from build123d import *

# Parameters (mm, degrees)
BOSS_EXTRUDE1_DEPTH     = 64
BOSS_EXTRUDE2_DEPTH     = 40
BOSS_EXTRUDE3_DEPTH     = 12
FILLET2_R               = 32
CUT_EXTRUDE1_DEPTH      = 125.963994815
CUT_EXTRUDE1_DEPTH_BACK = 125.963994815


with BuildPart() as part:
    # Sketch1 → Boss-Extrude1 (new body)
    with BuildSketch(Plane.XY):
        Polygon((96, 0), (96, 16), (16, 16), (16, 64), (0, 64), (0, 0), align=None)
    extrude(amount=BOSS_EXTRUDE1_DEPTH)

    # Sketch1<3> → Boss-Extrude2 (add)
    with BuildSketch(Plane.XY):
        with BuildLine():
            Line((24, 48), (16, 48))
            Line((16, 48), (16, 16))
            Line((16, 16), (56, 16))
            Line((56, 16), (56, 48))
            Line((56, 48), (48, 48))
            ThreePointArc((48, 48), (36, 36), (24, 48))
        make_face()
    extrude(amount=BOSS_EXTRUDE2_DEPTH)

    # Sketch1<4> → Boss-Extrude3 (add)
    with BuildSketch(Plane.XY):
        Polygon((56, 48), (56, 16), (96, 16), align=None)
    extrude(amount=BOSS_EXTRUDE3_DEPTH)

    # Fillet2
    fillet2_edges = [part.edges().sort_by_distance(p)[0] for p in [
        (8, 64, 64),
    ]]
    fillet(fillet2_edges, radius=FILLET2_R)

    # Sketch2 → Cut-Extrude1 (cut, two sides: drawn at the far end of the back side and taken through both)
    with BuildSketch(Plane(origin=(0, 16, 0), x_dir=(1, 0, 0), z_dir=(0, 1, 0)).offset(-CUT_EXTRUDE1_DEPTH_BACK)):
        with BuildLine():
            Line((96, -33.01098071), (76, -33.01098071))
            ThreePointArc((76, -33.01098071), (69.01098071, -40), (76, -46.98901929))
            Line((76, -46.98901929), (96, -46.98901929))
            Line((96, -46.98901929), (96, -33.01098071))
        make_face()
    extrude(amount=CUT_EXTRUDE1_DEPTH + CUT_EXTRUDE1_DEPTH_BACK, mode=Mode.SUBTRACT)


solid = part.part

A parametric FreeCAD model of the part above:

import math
import FreeCAD as App
import Part
import Sketcher


def edges_at(feature, points):
    """Names of the edges that pass closest to the given points."""
    edges = feature.Shape.Edges
    near = lambda p: min(range(len(edges)), key=lambda i: edges[i].distToShape(Part.Vertex(*p))[0])
    return sorted({f"Edge{near(p) + 1}" for p in points})


def add_polygon(sketch, points):
    """Adds a closed chain of lines whose ends are joined by coincident constraints."""
    first, n = sketch.GeometryCount, len(points)
    for a, b in zip(points, points[1:] + points[:1]):
        sketch.addGeometry(Part.LineSegment(App.Vector(*a, 0), App.Vector(*b, 0)), False)
    for i in range(n):
        sketch.addConstraint(Sketcher.Constraint("Coincident", first + i, 2, first + (i + 1) % n, 1))

doc = App.newDocument("Part")
body = doc.addObject("PartDesign::Body", "Body")

sketch1 = body.newObject("Sketcher::SketchObject", "Sketch")
sketch1.AttachmentSupport = (doc.getObject("XY_Plane"), [""])
sketch1.MapMode = "FlatFace"
add_polygon(sketch1, [(96, 0), (96, 16), (16, 16), (16, 64), (0, 64), (0, 0)])
sketch1.addConstraint([
    Sketcher.Constraint("Vertical", 0),
    Sketcher.Constraint("Horizontal", 1),
    Sketcher.Constraint("Vertical", 2),
    Sketcher.Constraint("Horizontal", 3),
    Sketcher.Constraint("Vertical", 4),
    Sketcher.Constraint("Horizontal", 5),
    Sketcher.Constraint("Coincident", 4, 2, -1, 1),
    Sketcher.Constraint("Equal", 3, 0),
    Sketcher.Constraint("DistanceX", 1, 2, 1, 1, 80.0),
    Sketcher.Constraint("DistanceX", 3, 2, 3, 1, 16.0),
    Sketcher.Constraint("DistanceY", 2, 1, 2, 2, 48.0),
])
pad1 = body.newObject("PartDesign::Pad", "Pad")
pad1.Profile = sketch1
pad1.Length = 64

sketch2 = body.newObject("Sketcher::SketchObject", "Sketch001")
sketch2.AttachmentSupport = (doc.getObject("XY_Plane"), [""])
sketch2.MapMode = "FlatFace"
sketch2.addGeometry([
    Part.LineSegment(App.Vector(24, 48, 0), App.Vector(16, 48, 0)),
    Part.LineSegment(App.Vector(16, 48, 0), App.Vector(16, 16, 0)),
    Part.LineSegment(App.Vector(16, 16, 0), App.Vector(56, 16, 0)),
    Part.LineSegment(App.Vector(56, 16, 0), App.Vector(56, 48, 0)),
    Part.LineSegment(App.Vector(56, 48, 0), App.Vector(48, 48, 0)),
    Part.ArcOfCircle(Part.Circle(App.Vector(36, 48, 0), App.Vector(0, 0, 1), 12), math.radians(180), math.radians(360)),
], False)
sketch2.addConstraint([
    Sketcher.Constraint("Coincident", 0, 2, 1, 1),
    Sketcher.Constraint("Coincident", 1, 2, 2, 1),
    Sketcher.Constraint("Coincident", 2, 2, 3, 1),
    Sketcher.Constraint("Coincident", 3, 2, 4, 1),
    Sketcher.Constraint("Coincident", 4, 2, 5, 2),
    Sketcher.Constraint("Coincident", 5, 1, 0, 1),
    Sketcher.Constraint("Horizontal", 0),
    Sketcher.Constraint("Vertical", 1),
    Sketcher.Constraint("Horizontal", 2),
    Sketcher.Constraint("Vertical", 3),
    Sketcher.Constraint("Horizontal", 4),
    Sketcher.Constraint("Horizontal", 5, 3, 0, 2),
    Sketcher.Constraint("Horizontal", 0, 2, 3, 2),
    Sketcher.Constraint("Equal", 0, 4),
    Sketcher.Constraint("Radius", 5, 12.0),
    Sketcher.Constraint("DistanceX", 0, 2, 0, 1, 8.0),
    Sketcher.Constraint("DistanceY", 1, 2, 1, 1, 32.0),
    Sketcher.Constraint("DistanceX", -1, 1, 5, 3, 36.0),
    Sketcher.Constraint("DistanceY", -1, 1, 5, 3, 48.0),
])
pad2 = body.newObject("PartDesign::Pad", "Pad001")
pad2.Profile = sketch2
pad2.Length = 40

sketch3 = body.newObject("Sketcher::SketchObject", "Sketch002")
sketch3.AttachmentSupport = (doc.getObject("XY_Plane"), [""])
sketch3.MapMode = "FlatFace"
add_polygon(sketch3, [(56, 48), (56, 16), (96, 16)])
sketch3.addConstraint([
    Sketcher.Constraint("Vertical", 0),
    Sketcher.Constraint("Horizontal", 1),
    Sketcher.Constraint("DistanceX", 1, 1, 1, 2, 40.0),
    Sketcher.Constraint("DistanceY", 0, 2, 0, 1, 32.0),
    Sketcher.Constraint("DistanceX", -1, 1, 0, 2, 56.0),
    Sketcher.Constraint("DistanceY", -1, 1, 0, 2, 16.0),
])
pad3 = body.newObject("PartDesign::Pad", "Pad002")
pad3.Profile = sketch3
pad3.Length = 12
doc.recompute()

fillet = body.newObject("PartDesign::Fillet", "Fillet")
fillet.Base = (pad3, edges_at(pad3, [(8, 64, 64)]))
fillet.Radius = 32

sketch4 = body.newObject("Sketcher::SketchObject", "Sketch003")
sketch4.AttachmentSupport = (doc.getObject("XZ_Plane"), [""])
sketch4.MapMode = "FlatFace"
sketch4.AttachmentOffset = App.Placement(App.Vector(0, 0, -16), App.Rotation())
sketch4.addGeometry([
    Part.LineSegment(App.Vector(96, 33, 0), App.Vector(76, 33, 0)),
    Part.ArcOfCircle(Part.Circle(App.Vector(76, 40, 0), App.Vector(0, 0, 1), 7), math.radians(90), math.radians(270)),
    Part.LineSegment(App.Vector(76, 47, 0), App.Vector(96, 47, 0)),
    Part.LineSegment(App.Vector(96, 47, 0), App.Vector(96, 33, 0)),
], False)
sketch4.addConstraint([
    Sketcher.Constraint("Tangent", 0, 2, 1, 2),
    Sketcher.Constraint("Tangent", 1, 1, 2, 1),
    Sketcher.Constraint("Coincident", 2, 2, 3, 1),
    Sketcher.Constraint("Coincident", 3, 2, 0, 1),
    Sketcher.Constraint("Horizontal", 0),
    Sketcher.Constraint("Horizontal", 2),
    Sketcher.Constraint("Vertical", 3),
    Sketcher.Constraint("DistanceX", 0, 2, 0, 1, 20.0),
    Sketcher.Constraint("DistanceX", -1, 1, 1, 3, 76.0),
    Sketcher.Constraint("DistanceY", -1, 1, 1, 3, 40.0),
    Sketcher.Constraint("Radius", 1, 6.989019),
])
pocket1 = body.newObject("PartDesign::Pocket", "Pocket")
pocket1.Profile = sketch4
pocket1.Type = "ThroughAll"
pocket1.Midplane = True

doc.recompute()
